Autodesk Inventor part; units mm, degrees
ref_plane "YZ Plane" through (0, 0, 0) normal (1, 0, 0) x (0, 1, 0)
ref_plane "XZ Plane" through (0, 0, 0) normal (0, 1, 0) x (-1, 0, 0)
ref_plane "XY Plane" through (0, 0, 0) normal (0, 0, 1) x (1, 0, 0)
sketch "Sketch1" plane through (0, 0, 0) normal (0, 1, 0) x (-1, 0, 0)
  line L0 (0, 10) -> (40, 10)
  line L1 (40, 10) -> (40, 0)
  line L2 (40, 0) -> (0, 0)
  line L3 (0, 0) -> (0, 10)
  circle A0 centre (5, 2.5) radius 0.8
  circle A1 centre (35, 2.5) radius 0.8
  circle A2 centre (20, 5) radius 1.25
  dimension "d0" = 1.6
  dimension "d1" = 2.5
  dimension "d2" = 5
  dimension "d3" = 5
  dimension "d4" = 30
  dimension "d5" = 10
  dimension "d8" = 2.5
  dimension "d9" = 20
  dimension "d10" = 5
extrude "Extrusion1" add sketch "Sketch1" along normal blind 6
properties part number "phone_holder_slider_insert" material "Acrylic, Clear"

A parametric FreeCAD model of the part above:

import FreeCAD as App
import Part
import Sketcher
Q = App.Units.Quantity

doc = App.newDocument("Part")
params = doc.addObject("Spreadsheet::Sheet", "Params")
for row, (alias, value) in enumerate([
    ("sketch1_diameter", "1.6 mm"),
    ("sketch1_diameter2", "2.5 mm"),
    ("sketch1_height", "10 mm"),
    ("pad1_length", "6 mm"),
], start=1):
    params.set(f"A{row}", alias)
    params.set(f"B{row}", "=" + value)
    params.setAlias(f"B{row}", alias)

body = doc.addObject("PartDesign::Body", "Body")

# Sketch on XZ plane
sketch1 = body.newObject("Sketcher::SketchObject", "Sketch")
sketch1.AttachmentSupport = (doc.getObject("XZ_Plane"), [""])
sketch1.MapMode = "FlatFace"
sketch1.addGeometry([
    Part.LineSegment(App.Vector(-40, 10, 0), App.Vector(0, 10, 0)),  # 0
    Part.LineSegment(App.Vector(0, 10, 0), App.Vector(0, 0, 0)),  # 1
    Part.LineSegment(App.Vector(0, 0, 0), App.Vector(-40, 0, 0)),  # 2
    Part.LineSegment(App.Vector(-40, 0, 0), App.Vector(-40, 10, 0)),  # 3
    Part.Circle(App.Vector(-5, 2.5, 0), App.Vector(0, 0, 1), 0.8),  # 4
    Part.Circle(App.Vector(-35, 2.5, 0), App.Vector(0, 0, 1), 0.8),  # 5
    Part.Circle(App.Vector(-20, 5, 0), App.Vector(0, 0, 1), 1.2),  # 6
], False)
sketch1.addConstraint([
    Sketcher.Constraint("Coincident", 0, 2, 1, 1),
    Sketcher.Constraint("Coincident", 1, 2, 2, 1),
    Sketcher.Constraint("Coincident", 2, 2, 3, 1),
    Sketcher.Constraint("Coincident", 3, 2, 0, 1),
    Sketcher.Constraint("Horizontal", 0),
    Sketcher.Constraint("Vertical", 1),
    Sketcher.Constraint("Horizontal", 2),
    Sketcher.Constraint("Vertical", 3),
    Sketcher.Constraint("Coincident", 1, 2, -1, 1),
    Sketcher.Constraint("Equal", 4, 5),
    Sketcher.Constraint("Horizontal", 4, 3, 5, 3),
    Sketcher.Constraint("Diameter", 4, Q("1.6 mm")),
    Sketcher.Constraint("Diameter", 6, Q("2.5 mm")),
    Sketcher.Constraint("DistanceY", 1, 2, 1, 1, Q("10 mm")),
    Sketcher.Constraint("DistanceX", 4, 3, -1, 1, Q("5 mm")),
    Sketcher.Constraint("DistanceX", 6, 3, -1, 1, Q("20 mm")),
    Sketcher.Constraint("DistanceY", -1, 1, 6, 3, Q("5 mm")),
    Sketcher.Constraint("DistanceX", 5, 3, 4, 3, Q("30 mm")),
    Sketcher.Constraint("DistanceX", 2, 2, 5, 3, Q("5 mm")),
    Sketcher.Constraint("DistanceY", -1, 1, 4, 3, Q("2.5 mm")),
])
sketch1.setExpression("Constraints[11]", "Params.sketch1_diameter")
sketch1.setExpression("Constraints[12]", "Params.sketch1_diameter2")
sketch1.setExpression("Constraints[13]", "Params.sketch1_height")
pad1 = body.newObject("PartDesign::Pad", "Pad")
pad1.Profile = sketch1
pad1.setExpression("Length", "Params.pad1_length")
pad1.Reversed = True

doc.recompute()
